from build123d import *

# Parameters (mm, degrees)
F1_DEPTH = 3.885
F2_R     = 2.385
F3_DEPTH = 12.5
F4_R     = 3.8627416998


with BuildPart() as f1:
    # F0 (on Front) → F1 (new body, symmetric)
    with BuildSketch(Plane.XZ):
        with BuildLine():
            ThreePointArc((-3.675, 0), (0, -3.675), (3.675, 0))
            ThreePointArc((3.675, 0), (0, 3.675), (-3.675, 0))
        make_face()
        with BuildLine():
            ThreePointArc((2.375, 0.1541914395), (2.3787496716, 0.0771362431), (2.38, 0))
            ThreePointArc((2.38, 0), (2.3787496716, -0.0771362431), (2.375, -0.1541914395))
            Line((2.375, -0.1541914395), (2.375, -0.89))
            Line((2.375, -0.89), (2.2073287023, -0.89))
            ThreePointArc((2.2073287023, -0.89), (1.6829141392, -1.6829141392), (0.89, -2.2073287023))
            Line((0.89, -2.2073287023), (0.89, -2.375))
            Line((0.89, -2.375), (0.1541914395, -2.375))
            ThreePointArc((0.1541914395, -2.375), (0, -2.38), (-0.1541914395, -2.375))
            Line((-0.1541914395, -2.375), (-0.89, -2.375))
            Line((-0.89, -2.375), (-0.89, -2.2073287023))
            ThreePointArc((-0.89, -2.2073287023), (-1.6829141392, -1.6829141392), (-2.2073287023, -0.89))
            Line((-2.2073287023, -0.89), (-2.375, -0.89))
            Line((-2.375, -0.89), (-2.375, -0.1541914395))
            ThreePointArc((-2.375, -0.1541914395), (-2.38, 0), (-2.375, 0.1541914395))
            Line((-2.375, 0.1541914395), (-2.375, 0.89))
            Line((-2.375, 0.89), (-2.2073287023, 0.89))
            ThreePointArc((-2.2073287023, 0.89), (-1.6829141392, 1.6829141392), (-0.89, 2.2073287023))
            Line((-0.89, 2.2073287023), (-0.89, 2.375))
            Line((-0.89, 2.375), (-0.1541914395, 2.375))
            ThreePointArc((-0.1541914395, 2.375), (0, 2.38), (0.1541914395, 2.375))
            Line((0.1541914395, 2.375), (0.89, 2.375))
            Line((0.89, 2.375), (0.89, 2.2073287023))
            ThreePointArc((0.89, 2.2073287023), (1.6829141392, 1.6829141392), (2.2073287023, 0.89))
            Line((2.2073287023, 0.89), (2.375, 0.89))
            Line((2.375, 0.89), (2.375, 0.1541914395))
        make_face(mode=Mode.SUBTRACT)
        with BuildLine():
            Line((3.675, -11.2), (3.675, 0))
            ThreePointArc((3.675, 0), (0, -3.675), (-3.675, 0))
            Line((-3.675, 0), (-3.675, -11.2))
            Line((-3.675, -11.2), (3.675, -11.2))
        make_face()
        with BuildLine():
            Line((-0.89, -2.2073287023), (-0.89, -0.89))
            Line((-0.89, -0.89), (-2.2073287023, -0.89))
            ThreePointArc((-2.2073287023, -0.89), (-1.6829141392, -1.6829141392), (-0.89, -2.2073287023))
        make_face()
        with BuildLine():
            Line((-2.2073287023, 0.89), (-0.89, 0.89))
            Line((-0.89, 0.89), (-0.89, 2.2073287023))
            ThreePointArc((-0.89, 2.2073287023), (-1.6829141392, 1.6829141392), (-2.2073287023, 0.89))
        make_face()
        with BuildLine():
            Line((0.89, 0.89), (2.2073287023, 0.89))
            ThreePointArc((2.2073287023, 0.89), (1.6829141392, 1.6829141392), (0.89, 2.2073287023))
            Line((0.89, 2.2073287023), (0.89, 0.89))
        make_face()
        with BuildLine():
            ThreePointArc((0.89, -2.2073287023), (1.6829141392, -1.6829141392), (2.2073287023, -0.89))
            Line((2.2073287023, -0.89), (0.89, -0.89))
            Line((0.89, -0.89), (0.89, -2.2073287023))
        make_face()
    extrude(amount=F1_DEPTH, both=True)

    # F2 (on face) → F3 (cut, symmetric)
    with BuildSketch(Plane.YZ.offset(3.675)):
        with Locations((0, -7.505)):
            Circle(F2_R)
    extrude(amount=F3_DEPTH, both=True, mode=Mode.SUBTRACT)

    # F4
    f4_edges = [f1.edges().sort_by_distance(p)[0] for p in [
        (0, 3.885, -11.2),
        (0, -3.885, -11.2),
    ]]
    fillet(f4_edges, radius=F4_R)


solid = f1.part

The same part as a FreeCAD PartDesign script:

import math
import FreeCAD as App
import Part
import Sketcher

V = App.Vector


def edges_at(feature, points):
    """Names of the edges that pass closest to the given points."""
    edges = feature.Shape.Edges
    near = lambda p: min(range(len(edges)), key=lambda i: edges[i].distToShape(Part.Vertex(*p))[0])
    return sorted({f"Edge{near(p) + 1}" for p in points})

doc = App.newDocument("Part")
params = doc.addObject("Spreadsheet::Sheet", "Params")
for row, (alias, value) in enumerate([
    ("sketch1_radius", "2.38 mm"),
    ("sketch1_height", "11.2 mm"),
    ("pad1_length", "7.77 mm"),
    ("sketch2_diameter", "4.77 mm"),
    ("pocket1_length", "25 mm"),
    ("fillet_radius", "3.862742 mm"),
], start=1):
    params.set(f"A{row}", alias)
    params.set(f"B{row}", "=" + value)
    params.setAlias(f"B{row}", alias)

body = doc.addObject("PartDesign::Body", "Body")

# Sketch on XZ plane
sketch1 = body.newObject("Sketcher::SketchObject", "Sketch")
sketch1.AttachmentSupport = (doc.getObject("XZ_Plane"), [""])
sketch1.MapMode = "FlatFace"
sketch1.addGeometry([
    Part.ArcOfCircle(Part.Circle(V(0, 0, 0), V(0, 0, 1), 3.67), math.radians(0), math.radians(180)),  # 0
    Part.LineSegment(V(-3.67, 0, 0), V(-3.67, -11.2, 0)),  # 1
    Part.LineSegment(V(-3.67, -11.2, 0), V(3.67, -11.2, 0)),  # 2
    Part.LineSegment(V(3.67, -11.2, 0), V(3.67, 0, 0)),  # 3
    Part.LineSegment(V(2.38, 0.89, 0), V(2.38, 0.15, 0)),  # 4
    Part.ArcOfCircle(Part.Circle(V(0, 0, 0), V(0, 0, 1), 2.38), math.radians(0), math.radians(3.71)),  # 5
    Part.ArcOfCircle(Part.Circle(V(0, 0, 0), V(0, 0, 1), 2.38), math.radians(-3.71), math.radians(0)),  # 6
    Part.LineSegment(V(2.38, -0.15, 0), V(2.38, -0.89, 0)),  # 7
    Part.LineSegment(V(2.38, -0.89, 0), V(0.89, -0.89, 0)),  # 8
    Part.LineSegment(V(0.89, -0.89, 0), V(0.89, -2.38, 0)),  # 9
    Part.LineSegment(V(0.89, -2.38, 0), V(0.15, -2.38, 0)),  # 10
    Part.ArcOfCircle(Part.Circle(V(0, 0, 0), V(0, 0, 1), 2.38), math.radians(-93.71), math.radians(-86.29)),  # 11
    Part.LineSegment(V(-0.15, -2.38, 0), V(-0.89, -2.38, 0)),  # 12
    Part.LineSegment(V(-0.89, -2.38, 0), V(-0.89, -0.89, 0)),  # 13
    Part.LineSegment(V(-0.89, -0.89, 0), V(-2.38, -0.89, 0)),  # 14
    Part.LineSegment(V(-2.38, -0.89, 0), V(-2.38, -0.15, 0)),  # 15
    Part.ArcOfCircle(Part.Circle(V(0, 0, 0), V(0, 0, 1), 2.38), math.radians(176.29), math.radians(183.71)),  # 16
    Part.LineSegment(V(-2.38, 0.15, 0), V(-2.38, 0.89, 0)),  # 17
    Part.LineSegment(V(-2.38, 0.89, 0), V(-0.89, 0.89, 0)),  # 18
    Part.LineSegment(V(-0.89, 0.89, 0), V(-0.89, 2.38, 0)),  # 19
    Part.LineSegment(V(-0.89, 2.38, 0), V(-0.15, 2.38, 0)),  # 20
    Part.ArcOfCircle(Part.Circle(V(0, 0, 0), V(0, 0, 1), 2.38), math.radians(86.29), math.radians(93.71)),  # 21
    Part.LineSegment(V(0.15, 2.38, 0), V(0.89, 2.38, 0)),  # 22
    Part.LineSegment(V(0.89, 2.38, 0), V(0.89, 0.89, 0)),  # 23
    Part.LineSegment(V(0.89, 0.89, 0), V(2.38, 0.89, 0)),  # 24
], False)
sketch1.addConstraint([
    Sketcher.Constraint("Tangent", 0, 2, 1, 1),
    Sketcher.Constraint("Coincident", 1, 2, 2, 1),
    Sketcher.Constraint("Coincident", 2, 2, 3, 1),
    Sketcher.Constraint("Tangent", 3, 2, 0, 1),
    Sketcher.Constraint("Coincident", 4, 2, 5, 2),
    Sketcher.Constraint("Tangent", 5, 1, 6, 2),
    Sketcher.Constraint("Coincident", 6, 1, 7, 1),
    Sketcher.Constraint("Coincident", 7, 2, 8, 1),
    Sketcher.Constraint("Coincident", 8, 2, 9, 1),
    Sketcher.Constraint("Coincident", 9, 2, 10, 1),
    Sketcher.Constraint("Coincident", 10, 2, 11, 2),
    Sketcher.Constraint("Coincident", 11, 1, 12, 1),
    Sketcher.Constraint("Coincident", 12, 2, 13, 1),
    Sketcher.Constraint("Coincident", 13, 2, 14, 1),
    Sketcher.Constraint("Coincident", 14, 2, 15, 1),
    Sketcher.Constraint("Coincident", 15, 2, 16, 2),
    Sketcher.Constraint("Coincident", 16, 1, 17, 1),
    Sketcher.Constraint("Coincident", 17, 2, 18, 1),
    Sketcher.Constraint("Coincident", 18, 2, 19, 1),
    Sketcher.Constraint("Coincident", 19, 2, 20, 1),
    Sketcher.Constraint("Coincident", 20, 2, 21, 2),
    Sketcher.Constraint("Coincident", 21, 1, 22, 1),
    Sketcher.Constraint("Coincident", 22, 2, 23, 1),
    Sketcher.Constraint("Coincident", 23, 2, 24, 1),
    Sketcher.Constraint("Coincident", 24, 2, 4, 1),
    Sketcher.Constraint("Vertical", 1),
    Sketcher.Constraint("Horizontal", 2),
    Sketcher.Constraint("Vertical", 3),
    Sketcher.Constraint("Vertical", 4),
    Sketcher.Constraint("Vertical", 7),
    Sketcher.Constraint("Horizontal", 8),
    Sketcher.Constraint("Vertical", 9),
    Sketcher.Constraint("Horizontal", 10),
    Sketcher.Constraint("Horizontal", 12),
    Sketcher.Constraint("Vertical", 13),
    Sketcher.Constraint("Horizontal", 14),
    Sketcher.Constraint("Vertical", 15),
    Sketcher.Constraint("Vertical", 17),
    Sketcher.Constraint("Horizontal", 18),
    Sketcher.Constraint("Vertical", 19),
    Sketcher.Constraint("Horizontal", 20),
    Sketcher.Constraint("Horizontal", 22),
    Sketcher.Constraint("Vertical", 23),
    Sketcher.Constraint("Horizontal", 24),
    Sketcher.Constraint("Coincident", 0, 3, -1, 1),
    Sketcher.Constraint("Coincident", 5, 3, -1, 1),
    Sketcher.Constraint("Coincident", 11, 3, -1, 1),
    Sketcher.Constraint("Coincident", 16, 3, -1, 1),
    Sketcher.Constraint("Coincident", 21, 3, -1, 1),
    Sketcher.Constraint("Equal", 5, 6),
    Sketcher.Constraint("Equal", 6, 11),
    Sketcher.Constraint("Equal", 11, 16),
    Sketcher.Constraint("Equal", 16, 21),
    Sketcher.Constraint("Symmetric", 7, 2, 17, 2, -1, 1),
    Sketcher.Constraint("Symmetric", 9, 2, 19, 2, -1, 1),
    Sketcher.Constraint("Symmetric", 12, 2, 22, 2, -1, 1),
    Sketcher.Constraint("Symmetric", 14, 2, 24, 2, -1, 1),
    Sketcher.Constraint("Symmetric", 9, 2, 12, 2, -2),
    Sketcher.Constraint("Symmetric", 7, 2, 14, 2, -2),
    Sketcher.Constraint("PointOnObject", 5, 1, -1),
    Sketcher.Constraint("Equal", 22, 4),
    Sketcher.Constraint("Equal", 24, 9),
    Sketcher.Constraint("Radius", 5, 2.38),
    Sketcher.Constraint("DistanceY", 1, 2, 1, 1, 11.2),
    Sketcher.Constraint("Radius", 0, 3.675),
    Sketcher.Constraint("DistanceX", 4, 2, 3, 2, 1.3),
    Sketcher.Constraint("DistanceX", 8, 2, 8, 1, 1.485),
])
sketch1.setExpression("Constraints[62]", "Params.sketch1_radius")
sketch1.setExpression("Constraints[63]", "Params.sketch1_height")
pad1 = body.newObject("PartDesign::Pad", "Pad")
pad1.Profile = sketch1
pad1.setExpression("Length", "Params.pad1_length")
pad1.Midplane = True

# Sketch on YZ plane
sketch2 = body.newObject("Sketcher::SketchObject", "Sketch001")
sketch2.AttachmentSupport = (doc.getObject("YZ_Plane"), [""])
sketch2.MapMode = "FlatFace"
sketch2.AttachmentOffset = App.Placement(V(0, 0, 3.675), App.Rotation())
sketch2.addGeometry(Part.Circle(V(0, -7.5, 0), V(0, 0, 1), 2.4), False)
sketch2.addConstraint([
    Sketcher.Constraint("PointOnObject", 0, 3, -2),
    Sketcher.Constraint("Diameter", 0, 4.77),
    Sketcher.Constraint("DistanceY", 0, 3, -1, 1, 7.505),
])
sketch2.setExpression("Constraints[1]", "Params.sketch2_diameter")
pocket1 = body.newObject("PartDesign::Pocket", "Pocket")
pocket1.Profile = sketch2
pocket1.setExpression("Length", "Params.pocket1_length")
pocket1.Midplane = True
doc.recompute()

fillet = body.newObject("PartDesign::Fillet", "Fillet")
fillet.Base = (pocket1, edges_at(pocket1, [(0, 3.885, -11.2), (0, -3.885, -11.2)]))
fillet.setExpression("Radius", "Params.fillet_radius")

doc.recompute()
